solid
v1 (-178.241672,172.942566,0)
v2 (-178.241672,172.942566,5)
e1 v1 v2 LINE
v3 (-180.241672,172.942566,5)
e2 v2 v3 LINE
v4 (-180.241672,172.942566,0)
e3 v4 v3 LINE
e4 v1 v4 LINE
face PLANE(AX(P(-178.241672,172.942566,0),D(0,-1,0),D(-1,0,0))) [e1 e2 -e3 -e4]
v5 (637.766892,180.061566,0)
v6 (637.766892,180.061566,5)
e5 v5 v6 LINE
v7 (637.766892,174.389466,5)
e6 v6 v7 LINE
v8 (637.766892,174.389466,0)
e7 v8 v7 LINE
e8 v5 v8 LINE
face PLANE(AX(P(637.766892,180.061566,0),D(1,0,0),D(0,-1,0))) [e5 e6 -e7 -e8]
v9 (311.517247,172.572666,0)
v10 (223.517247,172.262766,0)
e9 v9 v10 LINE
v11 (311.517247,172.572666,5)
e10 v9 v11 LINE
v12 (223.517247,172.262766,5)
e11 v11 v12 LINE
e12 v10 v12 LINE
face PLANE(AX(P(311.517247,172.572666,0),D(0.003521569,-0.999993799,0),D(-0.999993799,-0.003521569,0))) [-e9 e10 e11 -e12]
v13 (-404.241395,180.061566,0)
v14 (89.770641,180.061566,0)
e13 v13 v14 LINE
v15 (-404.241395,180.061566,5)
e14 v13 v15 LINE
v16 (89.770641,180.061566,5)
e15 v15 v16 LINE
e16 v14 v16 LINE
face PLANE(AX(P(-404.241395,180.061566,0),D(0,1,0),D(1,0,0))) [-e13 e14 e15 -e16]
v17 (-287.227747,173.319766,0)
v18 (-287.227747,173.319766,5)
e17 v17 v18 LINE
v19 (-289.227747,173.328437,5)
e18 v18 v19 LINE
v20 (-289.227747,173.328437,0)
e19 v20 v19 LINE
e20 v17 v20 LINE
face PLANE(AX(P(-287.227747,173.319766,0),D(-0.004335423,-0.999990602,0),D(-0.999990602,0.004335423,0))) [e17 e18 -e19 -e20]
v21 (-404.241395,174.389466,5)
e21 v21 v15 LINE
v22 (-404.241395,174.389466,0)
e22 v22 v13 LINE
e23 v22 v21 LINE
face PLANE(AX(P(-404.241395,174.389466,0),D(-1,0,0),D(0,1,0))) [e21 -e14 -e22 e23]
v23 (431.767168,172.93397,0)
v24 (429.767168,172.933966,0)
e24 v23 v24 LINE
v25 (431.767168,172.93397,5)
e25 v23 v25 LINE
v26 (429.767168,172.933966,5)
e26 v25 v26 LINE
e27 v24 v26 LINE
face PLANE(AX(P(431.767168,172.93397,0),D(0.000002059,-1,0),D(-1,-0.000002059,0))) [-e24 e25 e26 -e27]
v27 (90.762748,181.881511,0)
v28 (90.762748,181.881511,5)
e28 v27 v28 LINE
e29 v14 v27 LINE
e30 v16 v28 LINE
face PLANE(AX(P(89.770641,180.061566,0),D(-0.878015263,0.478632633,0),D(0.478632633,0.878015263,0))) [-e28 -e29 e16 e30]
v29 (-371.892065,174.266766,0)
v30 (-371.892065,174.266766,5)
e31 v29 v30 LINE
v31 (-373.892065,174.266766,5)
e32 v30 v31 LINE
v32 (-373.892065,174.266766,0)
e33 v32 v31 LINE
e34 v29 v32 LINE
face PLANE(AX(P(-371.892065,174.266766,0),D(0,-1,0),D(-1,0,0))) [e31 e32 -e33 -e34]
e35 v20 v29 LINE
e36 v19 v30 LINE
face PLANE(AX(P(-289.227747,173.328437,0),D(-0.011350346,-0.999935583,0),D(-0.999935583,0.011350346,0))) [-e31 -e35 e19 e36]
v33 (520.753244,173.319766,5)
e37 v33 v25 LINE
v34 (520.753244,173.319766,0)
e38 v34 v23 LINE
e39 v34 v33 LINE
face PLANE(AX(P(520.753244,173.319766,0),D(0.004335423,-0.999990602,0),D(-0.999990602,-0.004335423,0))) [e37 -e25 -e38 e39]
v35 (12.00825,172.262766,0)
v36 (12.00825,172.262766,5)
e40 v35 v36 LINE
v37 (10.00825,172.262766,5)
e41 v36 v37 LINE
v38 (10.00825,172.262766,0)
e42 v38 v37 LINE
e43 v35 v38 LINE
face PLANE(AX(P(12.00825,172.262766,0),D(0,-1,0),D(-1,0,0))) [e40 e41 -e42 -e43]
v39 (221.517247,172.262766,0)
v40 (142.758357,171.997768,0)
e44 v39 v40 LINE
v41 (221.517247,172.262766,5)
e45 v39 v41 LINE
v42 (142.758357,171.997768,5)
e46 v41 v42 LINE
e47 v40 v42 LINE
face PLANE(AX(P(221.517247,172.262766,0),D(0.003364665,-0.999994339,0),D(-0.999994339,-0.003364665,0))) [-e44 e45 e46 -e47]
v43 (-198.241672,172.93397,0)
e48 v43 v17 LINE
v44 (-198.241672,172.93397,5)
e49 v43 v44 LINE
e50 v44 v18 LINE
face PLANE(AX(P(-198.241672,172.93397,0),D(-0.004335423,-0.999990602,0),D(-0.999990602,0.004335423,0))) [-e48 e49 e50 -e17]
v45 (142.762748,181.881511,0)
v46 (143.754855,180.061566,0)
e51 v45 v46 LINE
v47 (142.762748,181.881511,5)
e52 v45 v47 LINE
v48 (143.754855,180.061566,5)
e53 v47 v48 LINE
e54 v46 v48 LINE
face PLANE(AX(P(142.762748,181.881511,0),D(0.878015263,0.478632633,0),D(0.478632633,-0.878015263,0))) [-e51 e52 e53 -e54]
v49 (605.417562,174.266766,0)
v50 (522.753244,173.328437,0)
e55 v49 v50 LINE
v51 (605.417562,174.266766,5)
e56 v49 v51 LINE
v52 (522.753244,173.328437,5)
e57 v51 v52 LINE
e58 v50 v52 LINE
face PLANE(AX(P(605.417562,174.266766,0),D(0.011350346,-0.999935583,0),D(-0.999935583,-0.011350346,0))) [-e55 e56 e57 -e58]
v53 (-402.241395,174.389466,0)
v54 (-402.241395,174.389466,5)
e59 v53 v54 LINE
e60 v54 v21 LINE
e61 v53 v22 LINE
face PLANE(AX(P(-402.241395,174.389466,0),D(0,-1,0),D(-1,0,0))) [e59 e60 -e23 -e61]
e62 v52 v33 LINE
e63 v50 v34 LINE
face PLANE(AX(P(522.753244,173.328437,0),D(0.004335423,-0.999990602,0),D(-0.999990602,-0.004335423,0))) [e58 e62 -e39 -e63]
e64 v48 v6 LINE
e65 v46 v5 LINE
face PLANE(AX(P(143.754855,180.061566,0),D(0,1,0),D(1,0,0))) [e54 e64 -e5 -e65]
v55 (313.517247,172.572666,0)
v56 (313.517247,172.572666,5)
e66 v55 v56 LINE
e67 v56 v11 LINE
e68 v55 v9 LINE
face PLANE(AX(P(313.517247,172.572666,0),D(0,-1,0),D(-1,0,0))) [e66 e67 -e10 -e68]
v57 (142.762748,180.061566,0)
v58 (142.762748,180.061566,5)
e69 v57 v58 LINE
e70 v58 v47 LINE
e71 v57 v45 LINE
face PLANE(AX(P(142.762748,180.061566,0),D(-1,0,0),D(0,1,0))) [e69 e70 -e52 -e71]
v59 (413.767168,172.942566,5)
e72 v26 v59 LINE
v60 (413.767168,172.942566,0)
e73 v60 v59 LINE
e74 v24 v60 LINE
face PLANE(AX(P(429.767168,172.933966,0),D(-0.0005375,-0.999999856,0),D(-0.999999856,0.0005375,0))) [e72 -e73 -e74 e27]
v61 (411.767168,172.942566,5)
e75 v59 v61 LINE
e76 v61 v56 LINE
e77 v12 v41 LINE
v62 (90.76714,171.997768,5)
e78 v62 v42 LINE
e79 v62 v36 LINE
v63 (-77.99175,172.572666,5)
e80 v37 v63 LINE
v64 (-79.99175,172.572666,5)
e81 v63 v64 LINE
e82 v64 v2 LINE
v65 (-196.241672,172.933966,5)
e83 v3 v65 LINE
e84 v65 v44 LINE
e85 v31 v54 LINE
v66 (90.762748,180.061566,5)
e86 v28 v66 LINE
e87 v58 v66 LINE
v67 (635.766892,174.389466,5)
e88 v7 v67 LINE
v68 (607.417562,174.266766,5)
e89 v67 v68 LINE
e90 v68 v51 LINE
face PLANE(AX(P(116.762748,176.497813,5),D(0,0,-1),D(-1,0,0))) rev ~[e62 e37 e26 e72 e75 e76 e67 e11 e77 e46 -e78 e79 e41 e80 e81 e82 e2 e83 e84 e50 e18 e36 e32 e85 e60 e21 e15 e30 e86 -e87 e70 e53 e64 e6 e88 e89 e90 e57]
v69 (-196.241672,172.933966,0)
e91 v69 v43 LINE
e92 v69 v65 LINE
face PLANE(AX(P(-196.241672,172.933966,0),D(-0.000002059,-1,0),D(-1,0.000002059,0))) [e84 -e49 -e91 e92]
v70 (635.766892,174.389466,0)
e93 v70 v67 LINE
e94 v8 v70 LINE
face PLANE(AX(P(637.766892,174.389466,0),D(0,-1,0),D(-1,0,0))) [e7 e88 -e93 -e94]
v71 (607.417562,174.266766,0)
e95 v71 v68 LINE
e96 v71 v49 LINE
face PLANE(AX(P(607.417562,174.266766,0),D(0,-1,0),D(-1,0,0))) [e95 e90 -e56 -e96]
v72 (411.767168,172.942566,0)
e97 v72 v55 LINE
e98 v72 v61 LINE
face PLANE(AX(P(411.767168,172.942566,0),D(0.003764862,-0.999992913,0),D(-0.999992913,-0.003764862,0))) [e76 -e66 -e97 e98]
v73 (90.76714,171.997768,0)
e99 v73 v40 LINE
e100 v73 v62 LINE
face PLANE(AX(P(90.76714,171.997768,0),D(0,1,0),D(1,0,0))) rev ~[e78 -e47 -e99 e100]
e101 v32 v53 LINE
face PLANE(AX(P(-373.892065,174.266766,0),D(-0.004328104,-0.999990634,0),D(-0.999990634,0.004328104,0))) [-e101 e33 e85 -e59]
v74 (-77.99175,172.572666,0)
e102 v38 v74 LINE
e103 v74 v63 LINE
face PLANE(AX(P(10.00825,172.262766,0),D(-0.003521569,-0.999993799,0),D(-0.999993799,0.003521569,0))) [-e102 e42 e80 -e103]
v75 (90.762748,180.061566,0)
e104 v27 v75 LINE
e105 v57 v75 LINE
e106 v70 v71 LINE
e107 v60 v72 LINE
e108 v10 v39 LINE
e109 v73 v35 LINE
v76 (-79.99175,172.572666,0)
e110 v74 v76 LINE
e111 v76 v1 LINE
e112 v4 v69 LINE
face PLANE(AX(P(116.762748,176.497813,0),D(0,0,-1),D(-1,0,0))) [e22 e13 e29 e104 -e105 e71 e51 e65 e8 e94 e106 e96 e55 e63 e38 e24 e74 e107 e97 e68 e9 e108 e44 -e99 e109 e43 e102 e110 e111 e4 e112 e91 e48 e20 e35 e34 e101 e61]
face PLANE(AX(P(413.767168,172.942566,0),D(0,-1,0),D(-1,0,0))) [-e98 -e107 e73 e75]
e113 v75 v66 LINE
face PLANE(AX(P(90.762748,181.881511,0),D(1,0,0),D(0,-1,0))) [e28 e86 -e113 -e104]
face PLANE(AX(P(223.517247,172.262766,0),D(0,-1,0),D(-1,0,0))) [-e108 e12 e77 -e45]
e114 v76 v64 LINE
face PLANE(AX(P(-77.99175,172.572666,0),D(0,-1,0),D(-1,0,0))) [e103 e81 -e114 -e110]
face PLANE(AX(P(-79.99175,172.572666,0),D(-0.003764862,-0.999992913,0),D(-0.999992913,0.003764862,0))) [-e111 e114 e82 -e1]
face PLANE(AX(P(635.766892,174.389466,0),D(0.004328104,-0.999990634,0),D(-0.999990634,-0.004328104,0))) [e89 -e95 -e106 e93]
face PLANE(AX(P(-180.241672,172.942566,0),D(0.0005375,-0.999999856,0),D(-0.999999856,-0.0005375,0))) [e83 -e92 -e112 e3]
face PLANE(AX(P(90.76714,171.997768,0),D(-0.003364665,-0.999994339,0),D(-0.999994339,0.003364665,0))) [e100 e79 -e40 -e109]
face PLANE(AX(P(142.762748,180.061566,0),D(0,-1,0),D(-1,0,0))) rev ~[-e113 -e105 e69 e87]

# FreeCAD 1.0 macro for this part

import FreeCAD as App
import Part
import Sketcher
Q = App.Units.Quantity

doc = App.newDocument("Part")
params = doc.addObject("Spreadsheet::Sheet", "Params")
for row, (alias, value) in enumerate([
    ("sketch1_width", "52 mm"),
    ("sketch1_width2", "2 mm"),
    ("sketch1_length", "2 mm"),
    ("pad1_length", "5 mm"),
], start=1):
    params.set(f"A{row}", alias)
    params.set(f"B{row}", "=" + value)
    params.setAlias(f"B{row}", alias)

body = doc.addObject("PartDesign::Body", "Body")

sketch1 = doc.addObject("Sketcher::SketchObject", "Sketch")
body.addObject(sketch1)
sketch1.AttachmentSupport = (doc.XY_Plane, [""])
sketch1.MapMode = "FlatFace"
sketch1.addGeometry(Part.LineSegment(App.Vector(637.8, 180.1, 0), App.Vector(143.8, 180.1, 0)), False)
sketch1.addGeometry(Part.LineSegment(App.Vector(143.8, 180.1, 0), App.Vector(142.8, 181.9, 0)), False)
sketch1.addGeometry(Part.LineSegment(App.Vector(142.8, 181.9, 0), App.Vector(142.8, 180.1, 0)), False)
sketch1.addGeometry(Part.LineSegment(App.Vector(142.8, 180.1, 0), App.Vector(90.8, 180.1, 0)), False)
sketch1.addGeometry(Part.LineSegment(App.Vector(90.8, 180.1, 0), App.Vector(90.8, 181.9, 0)), False)
sketch1.addGeometry(Part.LineSegment(App.Vector(90.8, 181.9, 0), App.Vector(89.8, 180.1, 0)), False)
sketch1.addGeometry(Part.LineSegment(App.Vector(89.8, 180.1, 0), App.Vector(-404.2, 180.1, 0)), False)
sketch1.addGeometry(Part.LineSegment(App.Vector(-404.2, 180.1, 0), App.Vector(-404.2, 174.4, 0)), False)
sketch1.addGeometry(Part.LineSegment(App.Vector(-404.2, 174.4, 0), App.Vector(-402.2, 174.4, 0)), False)
sketch1.addGeometry(Part.LineSegment(App.Vector(-402.2, 174.4, 0), App.Vector(-373.9, 174.3, 0)), False)
sketch1.addGeometry(Part.LineSegment(App.Vector(-373.9, 174.3, 0), App.Vector(-371.9, 174.3, 0)), False)
sketch1.addGeometry(Part.LineSegment(App.Vector(-371.9, 174.3, 0), App.Vector(-289.2, 173.3, 0)), False)
sketch1.addGeometry(Part.LineSegment(App.Vector(-289.2, 173.3, 0), App.Vector(-287.2, 173.3, 0)), False)
sketch1.addGeometry(Part.LineSegment(App.Vector(-287.2, 173.3, 0), App.Vector(-198.2, 172.9, 0)), False)
sketch1.addGeometry(Part.LineSegment(App.Vector(-198.2, 172.9, 0), App.Vector(-196.2, 172.9, 0)), False)
sketch1.addGeometry(Part.LineSegment(App.Vector(-196.2, 172.9, 0), App.Vector(-180.2, 172.9, 0)), False)
sketch1.addGeometry(Part.LineSegment(App.Vector(-180.2, 172.9, 0), App.Vector(-178.2, 172.9, 0)), False)
sketch1.addGeometry(Part.LineSegment(App.Vector(-178.2, 172.9, 0), App.Vector(-80, 172.6, 0)), False)
sketch1.addGeometry(Part.LineSegment(App.Vector(-80, 172.6, 0), App.Vector(-78, 172.6, 0)), False)
sketch1.addGeometry(Part.LineSegment(App.Vector(-78, 172.6, 0), App.Vector(10, 172.3, 0)), False)
sketch1.addGeometry(Part.LineSegment(App.Vector(10, 172.3, 0), App.Vector(12, 172.3, 0)), False)
sketch1.addGeometry(Part.LineSegment(App.Vector(12, 172.3, 0), App.Vector(90.8, 172, 0)), False)
sketch1.addGeometry(Part.LineSegment(App.Vector(90.8, 172, 0), App.Vector(142.8, 172, 0)), False)
sketch1.addGeometry(Part.LineSegment(App.Vector(142.8, 172, 0), App.Vector(221.5, 172.3, 0)), False)
sketch1.addGeometry(Part.LineSegment(App.Vector(221.5, 172.3, 0), App.Vector(223.5, 172.3, 0)), False)
sketch1.addGeometry(Part.LineSegment(App.Vector(223.5, 172.3, 0), App.Vector(311.5, 172.6, 0)), False)
sketch1.addGeometry(Part.LineSegment(App.Vector(311.5, 172.6, 0), App.Vector(313.5, 172.6, 0)), False)
sketch1.addGeometry(Part.LineSegment(App.Vector(313.5, 172.6, 0), App.Vector(411.8, 172.9, 0)), False)
sketch1.addGeometry(Part.LineSegment(App.Vector(411.8, 172.9, 0), App.Vector(413.8, 172.9, 0)), False)
sketch1.addGeometry(Part.LineSegment(App.Vector(413.8, 172.9, 0), App.Vector(429.8, 172.9, 0)), False)
sketch1.addGeometry(Part.LineSegment(App.Vector(429.8, 172.9, 0), App.Vector(431.8, 172.9, 0)), False)
sketch1.addGeometry(Part.LineSegment(App.Vector(431.8, 172.9, 0), App.Vector(520.8, 173.3, 0)), False)
sketch1.addGeometry(Part.LineSegment(App.Vector(520.8, 173.3, 0), App.Vector(522.8, 173.3, 0)), False)
sketch1.addGeometry(Part.LineSegment(App.Vector(522.8, 173.3, 0), App.Vector(605.4, 174.3, 0)), False)
sketch1.addGeometry(Part.LineSegment(App.Vector(605.4, 174.3, 0), App.Vector(607.4, 174.3, 0)), False)
sketch1.addGeometry(Part.LineSegment(App.Vector(607.4, 174.3, 0), App.Vector(635.8, 174.4, 0)), False)
sketch1.addGeometry(Part.LineSegment(App.Vector(635.8, 174.4, 0), App.Vector(637.8, 174.4, 0)), False)
sketch1.addGeometry(Part.LineSegment(App.Vector(637.8, 174.4, 0), App.Vector(637.8, 180.1, 0)), False)
sketch1.addConstraint(Sketcher.Constraint("Coincident", 0, 2, 1, 1))
sketch1.addConstraint(Sketcher.Constraint("Coincident", 1, 2, 2, 1))
sketch1.addConstraint(Sketcher.Constraint("Coincident", 2, 2, 3, 1))
sketch1.addConstraint(Sketcher.Constraint("Coincident", 3, 2, 4, 1))
sketch1.addConstraint(Sketcher.Constraint("Coincident", 4, 2, 5, 1))
sketch1.addConstraint(Sketcher.Constraint("Coincident", 5, 2, 6, 1))
sketch1.addConstraint(Sketcher.Constraint("Coincident", 6, 2, 7, 1))
sketch1.addConstraint(Sketcher.Constraint("Coincident", 7, 2, 8, 1))
sketch1.addConstraint(Sketcher.Constraint("Coincident", 8, 2, 9, 1))
sketch1.addConstraint(Sketcher.Constraint("Coincident", 9, 2, 10, 1))
sketch1.addConstraint(Sketcher.Constraint("Coincident", 10, 2, 11, 1))
sketch1.addConstraint(Sketcher.Constraint("Coincident", 11, 2, 12, 1))
sketch1.addConstraint(Sketcher.Constraint("Coincident", 12, 2, 13, 1))
sketch1.addConstraint(Sketcher.Constraint("Coincident", 13, 2, 14, 1))
sketch1.addConstraint(Sketcher.Constraint("Coincident", 14, 2, 15, 1))
sketch1.addConstraint(Sketcher.Constraint("Coincident", 15, 2, 16, 1))
sketch1.addConstraint(Sketcher.Constraint("Coincident", 16, 2, 17, 1))
sketch1.addConstraint(Sketcher.Constraint("Coincident", 17, 2, 18, 1))
sketch1.addConstraint(Sketcher.Constraint("Coincident", 18, 2, 19, 1))
sketch1.addConstraint(Sketcher.Constraint("Coincident", 19, 2, 20, 1))
sketch1.addConstraint(Sketcher.Constraint("Coincident", 20, 2, 21, 1))
sketch1.addConstraint(Sketcher.Constraint("Coincident", 21, 2, 22, 1))
sketch1.addConstraint(Sketcher.Constraint("Coincident", 22, 2, 23, 1))
sketch1.addConstraint(Sketcher.Constraint("Coincident", 23, 2, 24, 1))
sketch1.addConstraint(Sketcher.Constraint("Coincident", 24, 2, 25, 1))
sketch1.addConstraint(Sketcher.Constraint("Coincident", 25, 2, 26, 1))
sketch1.addConstraint(Sketcher.Constraint("Coincident", 26, 2, 27, 1))
sketch1.addConstraint(Sketcher.Constraint("Coincident", 27, 2, 28, 1))
sketch1.addConstraint(Sketcher.Constraint("Coincident", 28, 2, 29, 1))
sketch1.addConstraint(Sketcher.Constraint("Coincident", 29, 2, 30, 1))
sketch1.addConstraint(Sketcher.Constraint("Coincident", 30, 2, 31, 1))
sketch1.addConstraint(Sketcher.Constraint("Coincident", 31, 2, 32, 1))
sketch1.addConstraint(Sketcher.Constraint("Coincident", 32, 2, 33, 1))
sketch1.addConstraint(Sketcher.Constraint("Coincident", 33, 2, 34, 1))
sketch1.addConstraint(Sketcher.Constraint("Coincident", 34, 2, 35, 1))
sketch1.addConstraint(Sketcher.Constraint("Coincident", 35, 2, 36, 1))
sketch1.addConstraint(Sketcher.Constraint("Coincident", 36, 2, 37, 1))
sketch1.addConstraint(Sketcher.Constraint("Coincident", 37, 2, 0, 1))
sketch1.addConstraint(Sketcher.Constraint("Horizontal", 0))
sketch1.addConstraint(Sketcher.Constraint("Vertical", 2))
sketch1.addConstraint(Sketcher.Constraint("Horizontal", 3))
sketch1.addConstraint(Sketcher.Constraint("Vertical", 4))
sketch1.addConstraint(Sketcher.Constraint("Horizontal", 6))
sketch1.addConstraint(Sketcher.Constraint("Vertical", 7))
sketch1.addConstraint(Sketcher.Constraint("Horizontal", 8))
sketch1.addConstraint(Sketcher.Constraint("Horizontal", 10))
sketch1.addConstraint(Sketcher.Constraint("Horizontal", 16))
sketch1.addConstraint(Sketcher.Constraint("Horizontal", 18))
sketch1.addConstraint(Sketcher.Constraint("Horizontal", 20))
sketch1.addConstraint(Sketcher.Constraint("Horizontal", 22))
sketch1.addConstraint(Sketcher.Constraint("Horizontal", 24))
sketch1.addConstraint(Sketcher.Constraint("Horizontal", 26))
sketch1.addConstraint(Sketcher.Constraint("Horizontal", 28))
sketch1.addConstraint(Sketcher.Constraint("Horizontal", 34))
sketch1.addConstraint(Sketcher.Constraint("Horizontal", 36))
sketch1.addConstraint(Sketcher.Constraint("Vertical", 37))
sketch1.addConstraint(Sketcher.Constraint("Parallel", 12, 13))
sketch1.addConstraint(Sketcher.Constraint("Parallel", 31, 32))
sketch1.addConstraint(Sketcher.Constraint("Horizontal", 0, 2, 2, 2))
sketch1.addConstraint(Sketcher.Constraint("Horizontal", 1, 2, 4, 2))
sketch1.addConstraint(Sketcher.Constraint("Horizontal", 3, 2, 5, 2))
sketch1.addConstraint(Sketcher.Constraint("Horizontal", 20, 2, 23, 2))
sketch1.addConstraint(Sketcher.Constraint("Horizontal", 18, 2, 25, 2))
sketch1.addConstraint(Sketcher.Constraint("Horizontal", 16, 2, 27, 2))
sketch1.addConstraint(Sketcher.Constraint("Horizontal", 14, 2, 29, 2))
sketch1.addConstraint(Sketcher.Constraint("Horizontal", 13, 2, 30, 2))
sketch1.addConstraint(Sketcher.Constraint("Horizontal", 12, 2, 31, 2))
sketch1.addConstraint(Sketcher.Constraint("Horizontal", 11, 2, 32, 2))
sketch1.addConstraint(Sketcher.Constraint("Horizontal", 10, 2, 33, 2))
sketch1.addConstraint(Sketcher.Constraint("Horizontal", 8, 2, 35, 2))
sketch1.addConstraint(Sketcher.Constraint("Equal", 0, 6))
sketch1.addConstraint(Sketcher.Constraint("Equal", 8, 10))
sketch1.addConstraint(Sketcher.Constraint("Equal", 10, 16))
sketch1.addConstraint(Sketcher.Constraint("Equal", 16, 18))
sketch1.addConstraint(Sketcher.Constraint("Equal", 18, 20))
sketch1.addConstraint(Sketcher.Constraint("Equal", 20, 24))
sketch1.addConstraint(Sketcher.Constraint("Equal", 24, 26))
sketch1.addConstraint(Sketcher.Constraint("Equal", 26, 28))
sketch1.addConstraint(Sketcher.Constraint("Equal", 28, 34))
sketch1.addConstraint(Sketcher.Constraint("Equal", 34, 36))
sketch1.addConstraint(Sketcher.Constraint("Equal", 1, 5))
sketch1.addConstraint(Sketcher.Constraint("Equal", 21, 23))
sketch1.addConstraint(Sketcher.Constraint("Equal", 19, 25))
sketch1.addConstraint(Sketcher.Constraint("Equal", 17, 27))
sketch1.addConstraint(Sketcher.Constraint("Equal", 15, 29))
sketch1.addConstraint(Sketcher.Constraint("Equal", 14, 30))
sketch1.addConstraint(Sketcher.Constraint("Equal", 13, 31))
sketch1.addConstraint(Sketcher.Constraint("Equal", 11, 33))
sketch1.addConstraint(Sketcher.Constraint("Equal", 9, 35))
sketch1.addConstraint(Sketcher.Constraint("DistanceX", 3, 2, 3, 1, Q("52 mm")))
sketch1.addConstraint(Sketcher.Constraint("DistanceX", 8, 1, 8, 2, Q("2 mm")))
sketch1.addConstraint(Sketcher.Constraint("Distance", 14, Q("2 mm")))
sketch1.addConstraint(Sketcher.Constraint("DistanceX", 11, 2, 12, 2, Q("2 mm")))
sketch1.addConstraint(Sketcher.Constraint("DistanceX", 14, 2, 15, 2, Q("16 mm")))
sketch1.addConstraint(Sketcher.Constraint("DistanceX", 18, 2, 19, 2, Q("88 mm")))
sketch1.addConstraint(Sketcher.Constraint("DistanceY", 7, 2, 7, 1, Q("5.6721 mm")))
sketch1.addConstraint(Sketcher.Constraint("DistanceY", 12, 2, 10, 2, Q("0.947 mm")))
sketch1.addConstraint(Sketcher.Constraint("DistanceY", 22, 2, 23, 2, Q("0.264999 mm")))
sketch1.addConstraint(Sketcher.Constraint("DistanceY", 27, 2, 0, 2, Q("7.119 mm")))
sketch1.addConstraint(Sketcher.Constraint("DistanceY", 9, 2, 8, 2, Q("0.1227 mm")))
sketch1.addConstraint(Sketcher.Constraint("DistanceY", 14, 2, 12, 2, Q("0.3858 mm")))
sketch1.addConstraint(Sketcher.Constraint("DistanceY", 17, 2, 16, 2, Q("0.3699 mm")))
sketch1.addConstraint(Sketcher.Constraint("DistanceY", 19, 2, 5, 2, Q("7.7988 mm")))
sketch1.addConstraint(Sketcher.Constraint("DistanceX", 19, 2, 3, 2, Q("80.754499 mm")))
sketch1.addConstraint(Sketcher.Constraint("DistanceX", 5, 2, 21, 2, Q("0.996499 mm")))
sketch1.addConstraint(Sketcher.Constraint("DistanceX", 0, 2, 0, 1, Q("494.012037 mm")))
sketch1.addConstraint(Sketcher.Constraint("DistanceX", 22, 1, 22, 2, Q("51.991217 mm")))
sketch1.addConstraint(Sketcher.Constraint("DistanceY", 2, 2, 2, 1, Q("1.819945 mm")))
sketch1.addConstraint(Sketcher.Constraint("DistanceX", -1, 1, 1, 2, Q("142.762748 mm")))
sketch1.addConstraint(Sketcher.Constraint("DistanceY", -1, 1, 1, 2, Q("181.881511 mm")))
sketch1.addConstraint(Sketcher.Constraint("DistanceX", 13, 2, -1, 1, Q("198.241672 mm")))
sketch1.addConstraint(Sketcher.Constraint("DistanceY", -1, 1, 13, 2, Q("172.93397 mm")))
sketch1.addConstraint(Sketcher.Constraint("DistanceX", 8, 2, 9, 2, Q("28.34933 mm")))
sketch1.addConstraint(Sketcher.Constraint("Distance", 11, Q("82.669643 mm")))
sketch1.setExpression("Constraints[89]", "Params.sketch1_width")
sketch1.setExpression("Constraints[90]", "Params.sketch1_width2")
sketch1.setExpression("Constraints[91]", "Params.sketch1_length")
pad1 = doc.addObject("PartDesign::Pad", "Pad")
body.addObject(pad1)
pad1.Profile = sketch1
pad1.setExpression("Length", "Params.pad1_length")

doc.recompute()
